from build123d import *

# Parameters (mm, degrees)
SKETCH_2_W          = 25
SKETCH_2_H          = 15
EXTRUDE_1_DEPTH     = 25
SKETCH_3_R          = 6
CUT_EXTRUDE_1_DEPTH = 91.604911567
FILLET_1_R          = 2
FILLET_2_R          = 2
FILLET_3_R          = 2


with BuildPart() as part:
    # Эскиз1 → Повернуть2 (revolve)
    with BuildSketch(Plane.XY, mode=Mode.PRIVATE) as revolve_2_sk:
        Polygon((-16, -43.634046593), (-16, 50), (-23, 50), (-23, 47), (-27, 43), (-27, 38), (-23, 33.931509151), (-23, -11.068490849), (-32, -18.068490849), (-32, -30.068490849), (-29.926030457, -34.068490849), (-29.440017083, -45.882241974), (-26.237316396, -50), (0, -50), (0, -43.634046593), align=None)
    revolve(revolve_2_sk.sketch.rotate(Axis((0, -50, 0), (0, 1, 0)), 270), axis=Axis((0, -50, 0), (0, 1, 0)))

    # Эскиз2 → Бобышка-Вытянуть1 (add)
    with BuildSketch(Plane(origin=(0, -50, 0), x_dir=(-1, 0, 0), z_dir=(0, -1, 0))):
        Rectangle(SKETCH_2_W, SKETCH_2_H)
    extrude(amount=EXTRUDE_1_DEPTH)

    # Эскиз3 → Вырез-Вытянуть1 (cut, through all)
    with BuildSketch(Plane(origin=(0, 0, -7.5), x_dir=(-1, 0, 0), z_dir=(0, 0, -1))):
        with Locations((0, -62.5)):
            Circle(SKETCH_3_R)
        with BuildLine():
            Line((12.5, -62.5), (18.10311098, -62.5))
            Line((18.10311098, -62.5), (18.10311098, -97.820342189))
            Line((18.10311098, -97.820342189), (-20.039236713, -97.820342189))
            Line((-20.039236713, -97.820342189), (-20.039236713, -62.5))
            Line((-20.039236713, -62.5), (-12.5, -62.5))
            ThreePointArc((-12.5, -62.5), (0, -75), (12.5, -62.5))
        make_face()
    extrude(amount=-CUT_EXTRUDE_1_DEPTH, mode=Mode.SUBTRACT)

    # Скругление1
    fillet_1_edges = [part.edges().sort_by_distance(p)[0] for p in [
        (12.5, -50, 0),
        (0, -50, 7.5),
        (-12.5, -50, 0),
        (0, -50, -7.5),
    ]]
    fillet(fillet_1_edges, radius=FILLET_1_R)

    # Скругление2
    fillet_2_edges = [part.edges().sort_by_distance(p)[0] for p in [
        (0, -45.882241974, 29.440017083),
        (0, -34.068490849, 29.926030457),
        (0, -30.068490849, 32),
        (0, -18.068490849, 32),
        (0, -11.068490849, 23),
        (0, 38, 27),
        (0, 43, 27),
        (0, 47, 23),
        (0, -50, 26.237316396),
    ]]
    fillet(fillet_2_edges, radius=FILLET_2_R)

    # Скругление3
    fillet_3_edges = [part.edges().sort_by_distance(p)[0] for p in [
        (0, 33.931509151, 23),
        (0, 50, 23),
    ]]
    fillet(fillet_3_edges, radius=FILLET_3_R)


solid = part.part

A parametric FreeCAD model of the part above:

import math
import FreeCAD as App
import Part
import Sketcher

V = App.Vector
Q = App.Units.Quantity


def edges_at(feature, points):
    """Names of the edges that pass closest to the given points."""
    edges = feature.Shape.Edges
    near = lambda p: min(range(len(edges)), key=lambda i: edges[i].distToShape(Part.Vertex(*p))[0])
    return sorted({f"Edge{near(p) + 1}" for p in points})


def add_polygon(sketch, points):
    """Adds a closed chain of lines whose ends are joined by coincident constraints."""
    first, n = sketch.GeometryCount, len(points)
    for a, b in zip(points, points[1:] + points[:1]):
        sketch.addGeometry(Part.LineSegment(App.Vector(*a, 0), App.Vector(*b, 0)), False)
    for i in range(n):
        sketch.addConstraint(Sketcher.Constraint("Coincident", first + i, 2, first + (i + 1) % n, 1))

doc = App.newDocument("Part")
params = doc.addObject("Spreadsheet::Sheet", "Params")
for row, (alias, value) in enumerate([
    ("sketch1_width", "7 mm"),
    ("sketch1_width2", "16 mm"),
    ("sketch1_height", "3 mm"),
    ("sketch1_height2", "5 mm"),
    ("sketch1_height3", "45 mm"),
    ("revolution_angle", "360 deg"),
    ("sketch2_width", "25 mm"),
    ("sketch2_height", "15 mm"),
    ("pad1_length", "25 mm"),
    ("sketch3_diameter", "12 mm"),
    ("sketch3_radius", "12.5 mm"),
    ("fillet_radius", "2 mm"),
    ("fillet2_radius", "2 mm"),
    ("fillet3_radius", "2 mm"),
], start=1):
    params.set(f"A{row}", alias)
    params.set(f"B{row}", "=" + value)
    params.setAlias(f"B{row}", alias)

body = doc.addObject("PartDesign::Body", "Body")

sketch1 = body.newObject("Sketcher::SketchObject", "Sketch")
sketch1.AttachmentSupport = (doc.getObject("XY_Plane"), [""])
sketch1.MapMode = "FlatFace"
add_polygon(sketch1, [(-16, -43.634047), (-16, 50), (-23, 50), (-23, 47), (-27, 43), (-27, 38), (-23, 33.931509), (-23, -11.068491), (-32, -18.068491), (-32, -30.068491), (-29.92603, -34.068491), (-29.440017, -45.882242), (-26.237316, -50), (0, -50), (0, -43.634047)])
sketch1.addConstraint(Sketcher.Constraint("Vertical", 0))
sketch1.addConstraint(Sketcher.Constraint("Horizontal", 1))
sketch1.addConstraint(Sketcher.Constraint("Vertical", 2))
sketch1.addConstraint(Sketcher.Constraint("Vertical", 4))
sketch1.addConstraint(Sketcher.Constraint("Vertical", 6))
sketch1.addConstraint(Sketcher.Constraint("Vertical", 8))
sketch1.addConstraint(Sketcher.Constraint("Horizontal", 12))
sketch1.addConstraint(Sketcher.Constraint("Vertical", 13))
sketch1.addConstraint(Sketcher.Constraint("Horizontal", 14))
sketch1.addConstraint(Sketcher.Constraint("PointOnObject", 12, 2, -2))
sketch1.addConstraint(Sketcher.Constraint("Perpendicular", 7, 11))
sketch1.addConstraint(Sketcher.Constraint("Vertical", 2, 2, 5, 2))
sketch1.addConstraint(Sketcher.Constraint("DistanceX", 1, 2, 1, 1, 7.0))
sketch1.addConstraint(Sketcher.Constraint("DistanceX", 14, 2, 14, 1, 16.0))
sketch1.addConstraint(Sketcher.Constraint("DistanceY", 2, 2, 2, 1, 3.0))
sketch1.addConstraint(Sketcher.Constraint("DistanceY", 4, 2, 4, 1, 5.0))
sketch1.addConstraint(Sketcher.Constraint("DistanceY", 6, 2, 6, 1, 45.0))
sketch1.addConstraint(Sketcher.Constraint("DistanceY", 8, 2, 8, 1, 12.0))
sketch1.addConstraint(Sketcher.Constraint("Angle", 3, Q("-135 deg")))
sketch1.addConstraint(Sketcher.Constraint("DistanceY", -1, 1, 0, 2, 50.0))
sketch1.addConstraint(Sketcher.Constraint("DistanceX", 3, 2, -1, 1, 27.0))
sketch1.addConstraint(Sketcher.Constraint("DistanceX", 7, 2, -1, 1, 32.0))
sketch1.addConstraint(Sketcher.Constraint("DistanceY", 11, 2, -1, 1, 50.0))
sketch1.addConstraint(Sketcher.Constraint("DistanceY", 7, 2, 6, 2, 7.0))
sketch1.addConstraint(Sketcher.Constraint("DistanceY", 9, 2, 8, 2, 4.0))
sketch1.addConstraint(Sketcher.Constraint("Distance", 9, 4.505702))
sketch1.addConstraint(Sketcher.Constraint("DistanceX", 10, 2, 11, 2, 3.202701))
sketch1.addConstraint(Sketcher.Constraint("Distance", 5, 5.70549))
sketch1.addConstraint(Sketcher.Constraint("DistanceX", 12, 1, 12, 2, 26.237316))
sketch1.addConstraint(Sketcher.Constraint("DistanceY", 0, 1, 0, 2, 93.634047))
sketch1.setExpression("Constraints[27]", "Params.sketch1_width")
sketch1.setExpression("Constraints[28]", "Params.sketch1_width2")
sketch1.setExpression("Constraints[29]", "Params.sketch1_height")
sketch1.setExpression("Constraints[30]", "Params.sketch1_height2")
sketch1.setExpression("Constraints[31]", "Params.sketch1_height3")
revolution = body.newObject("PartDesign::Revolution", "Revolution")
revolution.Profile = sketch1
revolution.ReferenceAxis = (sketch1, ["V_Axis"])
revolution.setExpression("Angle", "Params.revolution_angle")

sketch2 = body.newObject("Sketcher::SketchObject", "Sketch001")
sketch2.AttachmentSupport = (doc.getObject("XZ_Plane"), [""])
sketch2.MapMode = "FlatFace"
sketch2.AttachmentOffset = App.Placement(V(0, 0, 50), App.Rotation())
add_polygon(sketch2, [(12.5, -7.5), (12.5, 7.5), (-12.5, 7.5), (-12.5, -7.5)])
sketch2.addConstraint(Sketcher.Constraint("Vertical", 0))
sketch2.addConstraint(Sketcher.Constraint("Horizontal", 1))
sketch2.addConstraint(Sketcher.Constraint("Vertical", 2))
sketch2.addConstraint(Sketcher.Constraint("Horizontal", 3))
sketch2.addConstraint(Sketcher.Constraint("Symmetric", 0, 2, 2, 2, -1, 1))
sketch2.addConstraint(Sketcher.Constraint("DistanceX", 1, 2, 1, 1, 25.0))
sketch2.addConstraint(Sketcher.Constraint("DistanceY", 0, 1, 0, 2, 15.0))
sketch2.setExpression("Constraints[9]", "Params.sketch2_width")
sketch2.setExpression("Constraints[10]", "Params.sketch2_height")
pad1 = body.newObject("PartDesign::Pad", "Pad")
pad1.Profile = sketch2
pad1.setExpression("Length", "Params.pad1_length")

sketch3 = body.newObject("Sketcher::SketchObject", "Sketch002")
sketch3.AttachmentSupport = (doc.getObject("XY_Plane"), [""])
sketch3.MapMode = "FlatFace"
sketch3.AttachmentOffset = App.Placement(V(0, 0, -7.5), App.Rotation())
sketch3.addGeometry(Part.Circle(V(0, -62.5, 0), V(0, 0, 1), 6), False)
sketch3.addGeometry(Part.LineSegment(V(-18.103111, -62.5, 0), V(-12.5, -62.5, 0)), False)
sketch3.addGeometry(Part.ArcOfCircle(Part.Circle(V(0, -62.5, 0), V(0, 0, 1), 12.5), math.radians(180), math.radians(360)), False)
sketch3.addGeometry(Part.LineSegment(V(12.5, -62.5, 0), V(20.039237, -62.5, 0)), False)
sketch3.addGeometry(Part.LineSegment(V(20.039237, -62.5, 0), V(20.039237, -97.820342, 0)), False)
sketch3.addGeometry(Part.LineSegment(V(20.039237, -97.820342, 0), V(-18.103111, -97.820342, 0)), False)
sketch3.addGeometry(Part.LineSegment(V(-18.103111, -97.820342, 0), V(-18.103111, -62.5, 0)), False)
sketch3.addConstraint(Sketcher.Constraint("Coincident", 1, 2, 2, 1))
sketch3.addConstraint(Sketcher.Constraint("Coincident", 2, 2, 3, 1))
sketch3.addConstraint(Sketcher.Constraint("Coincident", 3, 2, 4, 1))
sketch3.addConstraint(Sketcher.Constraint("Coincident", 4, 2, 5, 1))
sketch3.addConstraint(Sketcher.Constraint("Coincident", 5, 2, 6, 1))
sketch3.addConstraint(Sketcher.Constraint("Coincident", 6, 2, 1, 1))
sketch3.addConstraint(Sketcher.Constraint("Horizontal", 1))
sketch3.addConstraint(Sketcher.Constraint("Horizontal", 3))
sketch3.addConstraint(Sketcher.Constraint("Vertical", 4))
sketch3.addConstraint(Sketcher.Constraint("Horizontal", 5))
sketch3.addConstraint(Sketcher.Constraint("Vertical", 6))
sketch3.addConstraint(Sketcher.Constraint("Coincident", 2, 3, 0, 3))
sketch3.addConstraint(Sketcher.Constraint("Symmetric", 1, 2, 2, 2, -2))
sketch3.addConstraint(Sketcher.Constraint("Horizontal", 2, 3, 1, 2))
sketch3.addConstraint(Sketcher.Constraint("Diameter", 0, 12.0))
sketch3.addConstraint(Sketcher.Constraint("Radius", 2, 12.5))
sketch3.addConstraint(Sketcher.Constraint("DistanceY", 0, 3, -1, 1, 62.5))
sketch3.addConstraint(Sketcher.Constraint("DistanceX", 1, 1, 1, 2, 5.603111))
sketch3.addConstraint(Sketcher.Constraint("DistanceX", 3, 1, 3, 2, 7.539237))
sketch3.addConstraint(Sketcher.Constraint("DistanceY", 4, 2, 4, 1, 35.320342))
sketch3.setExpression("Constraints[14]", "Params.sketch3_diameter")
sketch3.setExpression("Constraints[15]", "Params.sketch3_radius")
pocket1 = body.newObject("PartDesign::Pocket", "Pocket")
pocket1.Profile = sketch3
pocket1.Type = "ThroughAll"
pocket1.Reversed = True
doc.recompute()

fillet = body.newObject("PartDesign::Fillet", "Fillet")
fillet.Base = (pocket1, edges_at(pocket1, [
    (12.5, -50, 0),
    (0, -50, 7.5),
    (-12.5, -50, 0),
    (0, -50, -7.5),
]))
fillet.setExpression("Radius", "Params.fillet_radius")
doc.recompute()

fillet2 = body.newObject("PartDesign::Fillet", "Fillet001")
fillet2.Base = (fillet, edges_at(fillet, [
    (0, -45.882, 29.44),
    (0, -34.068, 29.926),
    (0, -30.068, 32),
    (0, -18.068, 32),
    (0, -11.068, 23),
    (0, 38, 27),
    (0, 43, 27),
    (0, 47, 23),
    (0, -50, 26.237),
]))
fillet2.setExpression("Radius", "Params.fillet2_radius")
doc.recompute()

fillet3 = body.newObject("PartDesign::Fillet", "Fillet002")
fillet3.Base = (fillet2, edges_at(fillet2, [(0, 33.932, 23), (0, 50, 23)]))
fillet3.setExpression("Radius", "Params.fillet3_radius")

doc.recompute()
